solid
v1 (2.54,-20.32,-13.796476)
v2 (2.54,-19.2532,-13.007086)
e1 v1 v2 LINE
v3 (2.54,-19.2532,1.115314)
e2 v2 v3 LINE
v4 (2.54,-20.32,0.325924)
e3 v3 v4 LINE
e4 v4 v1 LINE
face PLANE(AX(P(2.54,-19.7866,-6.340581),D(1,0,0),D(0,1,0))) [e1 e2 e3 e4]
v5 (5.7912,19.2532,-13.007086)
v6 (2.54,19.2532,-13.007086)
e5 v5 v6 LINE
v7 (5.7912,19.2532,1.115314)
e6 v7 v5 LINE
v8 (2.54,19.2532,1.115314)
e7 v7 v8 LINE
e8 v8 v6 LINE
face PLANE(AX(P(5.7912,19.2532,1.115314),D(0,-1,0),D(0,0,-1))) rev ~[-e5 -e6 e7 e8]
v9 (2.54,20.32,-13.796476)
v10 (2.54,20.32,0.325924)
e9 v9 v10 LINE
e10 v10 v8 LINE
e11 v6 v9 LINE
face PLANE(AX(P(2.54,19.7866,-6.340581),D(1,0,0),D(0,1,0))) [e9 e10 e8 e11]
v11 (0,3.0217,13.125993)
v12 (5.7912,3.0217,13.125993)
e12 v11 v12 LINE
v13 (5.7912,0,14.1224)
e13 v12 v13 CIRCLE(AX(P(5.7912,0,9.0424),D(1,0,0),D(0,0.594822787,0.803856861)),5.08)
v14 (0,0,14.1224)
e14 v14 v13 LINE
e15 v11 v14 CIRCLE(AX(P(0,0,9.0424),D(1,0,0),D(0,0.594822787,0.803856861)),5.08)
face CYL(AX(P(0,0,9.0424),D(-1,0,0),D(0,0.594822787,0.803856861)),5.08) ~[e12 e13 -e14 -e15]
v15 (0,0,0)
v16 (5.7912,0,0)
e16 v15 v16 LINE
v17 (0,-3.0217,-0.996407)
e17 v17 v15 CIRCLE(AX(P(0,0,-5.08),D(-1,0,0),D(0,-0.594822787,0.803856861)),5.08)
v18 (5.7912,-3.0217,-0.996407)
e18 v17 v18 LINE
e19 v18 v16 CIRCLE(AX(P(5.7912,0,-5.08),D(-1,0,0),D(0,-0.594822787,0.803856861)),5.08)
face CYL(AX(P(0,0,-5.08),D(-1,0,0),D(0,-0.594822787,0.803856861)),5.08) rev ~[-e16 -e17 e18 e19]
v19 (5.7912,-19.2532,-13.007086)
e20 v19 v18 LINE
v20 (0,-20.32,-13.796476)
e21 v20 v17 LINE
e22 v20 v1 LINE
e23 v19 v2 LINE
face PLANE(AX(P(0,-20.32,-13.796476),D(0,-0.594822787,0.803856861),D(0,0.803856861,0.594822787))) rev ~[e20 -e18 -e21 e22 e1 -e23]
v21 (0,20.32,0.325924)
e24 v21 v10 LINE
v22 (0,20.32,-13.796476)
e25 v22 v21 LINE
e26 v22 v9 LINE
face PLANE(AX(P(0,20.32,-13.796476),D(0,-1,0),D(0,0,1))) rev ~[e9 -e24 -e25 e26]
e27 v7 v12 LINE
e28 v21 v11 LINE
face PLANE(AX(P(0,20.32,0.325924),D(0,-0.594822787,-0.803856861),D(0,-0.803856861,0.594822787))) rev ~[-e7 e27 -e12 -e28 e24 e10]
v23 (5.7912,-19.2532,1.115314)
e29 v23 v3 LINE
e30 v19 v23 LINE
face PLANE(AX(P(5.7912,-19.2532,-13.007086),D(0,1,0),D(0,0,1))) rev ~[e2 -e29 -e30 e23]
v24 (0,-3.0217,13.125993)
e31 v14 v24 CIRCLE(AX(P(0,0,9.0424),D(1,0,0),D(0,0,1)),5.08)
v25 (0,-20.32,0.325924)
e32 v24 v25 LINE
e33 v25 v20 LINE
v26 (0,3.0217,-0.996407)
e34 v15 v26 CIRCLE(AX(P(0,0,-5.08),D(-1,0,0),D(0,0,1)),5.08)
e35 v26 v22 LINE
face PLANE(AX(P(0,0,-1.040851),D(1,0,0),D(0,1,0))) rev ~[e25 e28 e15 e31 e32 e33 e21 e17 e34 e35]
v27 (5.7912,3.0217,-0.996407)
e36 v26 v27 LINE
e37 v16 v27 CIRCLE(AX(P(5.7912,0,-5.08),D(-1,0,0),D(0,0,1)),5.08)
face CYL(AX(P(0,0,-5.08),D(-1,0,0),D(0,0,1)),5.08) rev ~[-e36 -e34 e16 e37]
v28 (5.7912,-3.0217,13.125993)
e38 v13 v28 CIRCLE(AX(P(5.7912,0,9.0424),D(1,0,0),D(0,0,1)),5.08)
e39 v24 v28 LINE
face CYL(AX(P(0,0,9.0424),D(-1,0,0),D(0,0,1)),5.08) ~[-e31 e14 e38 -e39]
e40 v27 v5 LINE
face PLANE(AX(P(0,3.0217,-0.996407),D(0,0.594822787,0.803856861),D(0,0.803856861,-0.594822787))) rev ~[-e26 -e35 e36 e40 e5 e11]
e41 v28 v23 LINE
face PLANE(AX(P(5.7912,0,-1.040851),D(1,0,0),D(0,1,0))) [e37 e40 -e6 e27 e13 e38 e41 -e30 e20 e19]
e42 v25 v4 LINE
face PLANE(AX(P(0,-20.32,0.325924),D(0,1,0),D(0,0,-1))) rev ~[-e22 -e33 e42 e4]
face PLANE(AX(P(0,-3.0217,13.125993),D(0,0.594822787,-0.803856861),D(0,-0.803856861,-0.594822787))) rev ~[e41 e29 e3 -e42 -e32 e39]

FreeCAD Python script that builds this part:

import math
import FreeCAD as App
import Part
import Sketcher

V = App.Vector
Q = App.Units.Quantity

doc = App.newDocument("Part")
params = doc.addObject("Spreadsheet::Sheet", "Params")
for row, (alias, value) in enumerate([
    ("sketch1_radius", "0.2 in"),
    ("sketch1_height", "0.556 in"),
    ("pad1_length", "0.228 in"),
    ("sketch2_height", "0.556 in"),
    ("pocket1_length", "0.128 in"),
], start=1):
    params.set(f"A{row}", alias)
    params.set(f"B{row}", "=" + value)
    params.setAlias(f"B{row}", alias)

body = doc.addObject("PartDesign::Body", "Body")

sketch1 = body.newObject("Sketcher::SketchObject", "Sketch")
sketch1.AttachmentSupport = (doc.getObject("YZ_Plane"), [""])
sketch1.MapMode = "FlatFace"
sketch1.addGeometry([
    Part.LineSegment(V(20.3, 0.3, 0), V(3, 13.1, 0)),
    Part.ArcOfCircle(Part.Circle(V(0, 9, 0), V(0, 0, 1), 5.1), math.radians(53), math.radians(90)),
    Part.ArcOfCircle(Part.Circle(V(0, 9, 0), V(0, 0, 1), 5.1), math.radians(90), math.radians(127)),
    Part.LineSegment(V(-3, 13.1, 0), V(-20.3, 0.3, 0)),
    Part.LineSegment(V(-20.3, 0.3, 0), V(-20.3, -13.8, 0)),
    Part.LineSegment(V(-20.3, -13.8, 0), V(-3, -1, 0)),
    Part.ArcOfCircle(Part.Circle(V(0, -5.1, 0), V(0, 0, 1), 5.1), math.radians(90), math.radians(127)),
    Part.ArcOfCircle(Part.Circle(V(0, -5.1, 0), V(0, 0, 1), 5.1), math.radians(53), math.radians(90)),
    Part.LineSegment(V(3, -1, 0), V(20.3, -13.8, 0)),
    Part.LineSegment(V(20.3, -13.8, 0), V(20.3, 0.3, 0)),
], False)
sketch1.addConstraint([
    Sketcher.Constraint("Tangent", 0, 2, 1, 1),
    Sketcher.Constraint("Tangent", 1, 2, 2, 1),
    Sketcher.Constraint("Tangent", 2, 2, 3, 1),
    Sketcher.Constraint("Coincident", 3, 2, 4, 1),
    Sketcher.Constraint("Coincident", 4, 2, 5, 1),
    Sketcher.Constraint("Tangent", 5, 2, 6, 2),
    Sketcher.Constraint("Tangent", 6, 1, 7, 2),
    Sketcher.Constraint("Tangent", 7, 1, 8, 1),
    Sketcher.Constraint("Coincident", 8, 2, 9, 1),
    Sketcher.Constraint("Coincident", 9, 2, 0, 1),
    Sketcher.Constraint("Vertical", 4),
    Sketcher.Constraint("Vertical", 9),
    Sketcher.Constraint("Coincident", 6, 1, -1, 1),
    Sketcher.Constraint("Equal", 1, 2),
    Sketcher.Constraint("Equal", 2, 6),
    Sketcher.Constraint("Equal", 6, 7),
    Sketcher.Constraint("Symmetric", 0, 2, 2, 2, -2),
    Sketcher.Constraint("Symmetric", 5, 2, 7, 1, -2),
    Sketcher.Constraint("PointOnObject", 1, 2, -2),
    Sketcher.Constraint("Parallel", 3, 5),
    Sketcher.Constraint("Horizontal", 4, 2, 8, 2),
    Sketcher.Constraint("Radius", 1, Q("0.2 in")),
    Sketcher.Constraint("DistanceX", 3, 2, -1, 1, Q("0.8 in")),
    Sketcher.Constraint("Angle", 0, Q("143.5 deg")),
    Sketcher.Constraint("DistanceY", 4, 2, 4, 1, Q("0.556 in")),
])
sketch1.setExpression("Constraints[21]", "Params.sketch1_radius")
sketch1.setExpression("Constraints[24]", "Params.sketch1_height")
pad1 = body.newObject("PartDesign::Pad", "Pad")
pad1.Profile = sketch1
pad1.setExpression("Length", "Params.pad1_length")

sketch2 = body.newObject("Sketcher::SketchObject", "Sketch001")
sketch2.AttachmentSupport = (doc.getObject("YZ_Plane"), [""])
sketch2.MapMode = "FlatFace"
sketch2.AttachmentOffset = App.Placement(V(0, 0, 0.228 * 25.4), App.Rotation())
sketch2.addGeometry([
    Part.LineSegment(V(19.3, -13, 0), V(20.3, -13.8, 0)),
    Part.LineSegment(V(20.3, -13.8, 0), V(20.3, 0.3, 0)),
    Part.LineSegment(V(20.3, 0.3, 0), V(19.3, 1.1, 0)),
    Part.LineSegment(V(19.3, 1.1, 0), V(19.3, -13, 0)),
    Part.LineSegment(V(-19.3, -13, 0), V(-19.3, 1.1, 0)),
    Part.LineSegment(V(-19.3, 1.1, 0), V(-20.3, 0.3, 0)),
    Part.LineSegment(V(-20.3, 0.3, 0), V(-20.3, -13.8, 0)),
    Part.LineSegment(V(-20.3, -13.8, 0), V(-19.3, -13, 0)),
], False)
sketch2.addConstraint([
    Sketcher.Constraint("Coincident", 0, 2, 1, 1),
    Sketcher.Constraint("Coincident", 1, 2, 2, 1),
    Sketcher.Constraint("Coincident", 2, 2, 3, 1),
    Sketcher.Constraint("Coincident", 3, 2, 0, 1),
    Sketcher.Constraint("Coincident", 4, 2, 5, 1),
    Sketcher.Constraint("Coincident", 5, 2, 6, 1),
    Sketcher.Constraint("Coincident", 6, 2, 7, 1),
    Sketcher.Constraint("Coincident", 7, 2, 4, 1),
    Sketcher.Constraint("Vertical", 1),
    Sketcher.Constraint("Vertical", 3),
    Sketcher.Constraint("Vertical", 4),
    Sketcher.Constraint("Vertical", 6),
    Sketcher.Constraint("Symmetric", 2, 2, 4, 2, -2),
    Sketcher.Constraint("Symmetric", 1, 2, 5, 2, -2),
    Sketcher.Constraint("Parallel", 0, 2),
    Sketcher.Constraint("Parallel", 5, 7),
    Sketcher.Constraint("Horizontal", 0, 2, 6, 2),
    Sketcher.Constraint("DistanceX", -1, 1, 0, 2, Q("0.8 in")),
    Sketcher.Constraint("Angle", 0, Q("-36.5 deg")),
    Sketcher.Constraint("DistanceY", 1, 1, 1, 2, Q("0.556 in")),
    Sketcher.Constraint("DistanceX", -1, 1, 2, 2, Q("0.758 in")),
    Sketcher.Constraint("DistanceY", 0, 2, -1, 1, Q("13.796476 mm")),
])
sketch2.setExpression("Constraints[19]", "Params.sketch2_height")
pocket1 = body.newObject("PartDesign::Pocket", "Pocket")
pocket1.Profile = sketch2
pocket1.setExpression("Length", "Params.pocket1_length")

doc.recompute()
